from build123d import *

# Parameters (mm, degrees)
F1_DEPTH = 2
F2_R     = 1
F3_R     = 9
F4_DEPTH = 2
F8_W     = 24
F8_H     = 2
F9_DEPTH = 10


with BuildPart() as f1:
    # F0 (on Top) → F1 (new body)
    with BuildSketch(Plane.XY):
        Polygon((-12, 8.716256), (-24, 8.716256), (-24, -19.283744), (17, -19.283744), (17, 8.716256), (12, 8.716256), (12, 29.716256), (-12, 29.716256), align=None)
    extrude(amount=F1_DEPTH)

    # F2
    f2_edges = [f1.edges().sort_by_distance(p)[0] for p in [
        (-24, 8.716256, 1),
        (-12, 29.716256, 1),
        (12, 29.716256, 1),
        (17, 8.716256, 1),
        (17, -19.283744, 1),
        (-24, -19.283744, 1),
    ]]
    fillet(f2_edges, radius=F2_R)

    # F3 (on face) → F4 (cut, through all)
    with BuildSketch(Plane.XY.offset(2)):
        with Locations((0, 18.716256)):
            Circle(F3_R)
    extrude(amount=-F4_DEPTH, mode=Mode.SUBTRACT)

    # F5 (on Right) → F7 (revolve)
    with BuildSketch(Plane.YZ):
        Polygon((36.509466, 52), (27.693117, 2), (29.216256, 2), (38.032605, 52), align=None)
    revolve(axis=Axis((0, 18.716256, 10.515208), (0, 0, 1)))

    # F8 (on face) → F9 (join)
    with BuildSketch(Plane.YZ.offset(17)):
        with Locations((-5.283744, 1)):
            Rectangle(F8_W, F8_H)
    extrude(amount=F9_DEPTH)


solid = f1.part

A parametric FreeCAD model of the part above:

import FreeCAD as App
import Part
import Sketcher
from FreeCAD import Vector
Q = App.Units.Quantity


def edges_at(feature, points):
    """Names of the edges that pass closest to the given points."""
    edges = feature.Shape.Edges
    near = lambda p: min(range(len(edges)), key=lambda i: edges[i].distToShape(Part.Vertex(*p))[0])
    return sorted({f"Edge{near(p) + 1}" for p in points})

doc = App.newDocument("Part")
body = doc.addObject("PartDesign::Body", "Body")

# Sketch on XY plane
sketch1 = doc.addObject("Sketcher::SketchObject", "Sketch")
body.addObject(sketch1)
sketch1.AttachmentSupport = (doc.XY_Plane, [""])
sketch1.MapMode = "FlatFace"
sketch1.addGeometry(Part.LineSegment(Vector(-12, 8.716256, 0), Vector(-24, 8.716256, 0)), False)
sketch1.addGeometry(Part.LineSegment(Vector(-24, 8.716256, 0), Vector(-24, -19.283744, 0)), False)
sketch1.addGeometry(Part.LineSegment(Vector(-24, -19.283744, 0), Vector(17, -19.283744, 0)), False)
sketch1.addGeometry(Part.LineSegment(Vector(17, -19.283744, 0), Vector(17, 8.716256, 0)), False)
sketch1.addGeometry(Part.LineSegment(Vector(17, 8.716256, 0), Vector(12, 8.716256, 0)), False)
sketch1.addGeometry(Part.LineSegment(Vector(12, 8.716256, 0), Vector(12, 29.716256, 0)), False)
sketch1.addGeometry(Part.LineSegment(Vector(12, 29.716256, 0), Vector(-12, 29.716256, 0)), False)
sketch1.addGeometry(Part.LineSegment(Vector(-12, 29.716256, 0), Vector(-12, 8.716256, 0)), False)
sketch1.addConstraint(Sketcher.Constraint("Coincident", 0, 2, 1, 1))
sketch1.addConstraint(Sketcher.Constraint("Coincident", 1, 2, 2, 1))
sketch1.addConstraint(Sketcher.Constraint("Coincident", 2, 2, 3, 1))
sketch1.addConstraint(Sketcher.Constraint("Coincident", 3, 2, 4, 1))
sketch1.addConstraint(Sketcher.Constraint("Coincident", 4, 2, 5, 1))
sketch1.addConstraint(Sketcher.Constraint("Coincident", 5, 2, 6, 1))
sketch1.addConstraint(Sketcher.Constraint("Coincident", 6, 2, 7, 1))
sketch1.addConstraint(Sketcher.Constraint("Coincident", 7, 2, 0, 1))
sketch1.addConstraint(Sketcher.Constraint("Horizontal", 0))
sketch1.addConstraint(Sketcher.Constraint("Vertical", 1))
sketch1.addConstraint(Sketcher.Constraint("Horizontal", 2))
sketch1.addConstraint(Sketcher.Constraint("Vertical", 3))
sketch1.addConstraint(Sketcher.Constraint("Horizontal", 4))
sketch1.addConstraint(Sketcher.Constraint("Vertical", 5))
sketch1.addConstraint(Sketcher.Constraint("Horizontal", 6))
sketch1.addConstraint(Sketcher.Constraint("Vertical", 7))
sketch1.addConstraint(Sketcher.Constraint("Symmetric", 4, 2, 7, 2, -2))
sketch1.addConstraint(Sketcher.Constraint("DistanceX", 0, 2, 0, 1, 12.0))
sketch1.addConstraint(Sketcher.Constraint("DistanceX", 2, 1, 2, 2, 41.0))
sketch1.addConstraint(Sketcher.Constraint("DistanceX", 4, 2, 4, 1, 5.0))
sketch1.addConstraint(Sketcher.Constraint("DistanceY", 1, 2, 1, 1, 28.0))
sketch1.addConstraint(Sketcher.Constraint("DistanceY", 5, 1, 5, 2, 21.0))
sketch1.addConstraint(Sketcher.Constraint("DistanceY", -1, 1, 0, 2, 8.716256))
pad1 = doc.addObject("PartDesign::Pad", "Pad")
body.addObject(pad1)
pad1.Profile = sketch1
pad1.Length = 2
doc.recompute()

fillet = doc.addObject("PartDesign::Fillet", "Fillet")
body.addObject(fillet)
fillet.Base = (pad1, edges_at(pad1, [
    (-24, 8.716, 1),
    (-12, 29.716, 1),
    (12, 29.716, 1),
    (17, 8.716, 1),
    (17, -19.284, 1),
    (-24, -19.284, 1),
]))
fillet.Radius = 1

# Sketch on XY plane
sketch2 = doc.addObject("Sketcher::SketchObject", "Sketch001")
body.addObject(sketch2)
sketch2.AttachmentSupport = (doc.XY_Plane, [""])
sketch2.MapMode = "FlatFace"
sketch2.AttachmentOffset = App.Placement(Vector(0, 0, 2), App.Rotation())
sketch2.addGeometry(Part.Circle(Vector(0, 18.716256, 0), Vector(0, 0, 1), 9), False)
sketch2.addConstraint(Sketcher.Constraint("PointOnObject", 0, 3, -2))
sketch2.addConstraint(Sketcher.Constraint("Diameter", 0, 18.0))
sketch2.addConstraint(Sketcher.Constraint("DistanceY", -1, 1, 0, 3, 18.716256))
pocket1 = doc.addObject("PartDesign::Pocket", "Pocket")
body.addObject(pocket1)
pocket1.Profile = sketch2
pocket1.Type = "ThroughAll"

# Sketch on YZ plane
sketch3 = doc.addObject("Sketcher::SketchObject", "Sketch002")
body.addObject(sketch3)
sketch3.AttachmentSupport = (doc.YZ_Plane, [""])
sketch3.MapMode = "FlatFace"
sketch3.addGeometry(Part.LineSegment(Vector(36.509466, 52, 0), Vector(27.693117, 2, 0)), False)
sketch3.addGeometry(Part.LineSegment(Vector(27.693117, 2, 0), Vector(29.216256, 2, 0)), False)
sketch3.addGeometry(Part.LineSegment(Vector(29.216256, 2, 0), Vector(38.032605, 52, 0)), False)
sketch3.addGeometry(Part.LineSegment(Vector(38.032605, 52, 0), Vector(36.509466, 52, 0)), False)
sketch3.addGeometry(Part.LineSegment(Vector(18.716256, 2, 0), Vector(18.716256, 52, 0)), True)  # axis
sketch3.addConstraint(Sketcher.Constraint("Coincident", 0, 2, 1, 1))
sketch3.addConstraint(Sketcher.Constraint("Coincident", 1, 2, 2, 1))
sketch3.addConstraint(Sketcher.Constraint("Coincident", 2, 2, 3, 1))
sketch3.addConstraint(Sketcher.Constraint("Coincident", 3, 2, 0, 1))
sketch3.addConstraint(Sketcher.Constraint("Horizontal", 1))
sketch3.addConstraint(Sketcher.Constraint("Horizontal", 3))
sketch3.addConstraint(Sketcher.Constraint("Vertical", 4))
sketch3.addConstraint(Sketcher.Constraint("Parallel", 0, 2))
sketch3.addConstraint(Sketcher.Constraint("Horizontal", 1, 2, 4, 1))
sketch3.addConstraint(Sketcher.Constraint("Horizontal", 3, 2, 4, 2))
sketch3.addConstraint(Sketcher.Constraint("DistanceY", 4, 1, 4, 2, 50.0))
sketch3.addConstraint(Sketcher.Constraint("Angle", 0, Q("-100 deg")))
sketch3.addConstraint(Sketcher.Constraint("DistanceY", -1, 1, 0, 2, 2.0))
sketch3.addConstraint(Sketcher.Constraint("DistanceX", 4, 1, 1, 2, 10.5))
sketch3.addConstraint(Sketcher.Constraint("DistanceX", 1, 1, 1, 2, 1.523139))
sketch3.addConstraint(Sketcher.Constraint("DistanceX", -1, 1, 0, 2, 27.693117))
revolution = doc.addObject("PartDesign::Revolution", "Revolution")
body.addObject(revolution)
revolution.Profile = sketch3
revolution.ReferenceAxis = (sketch3, ["Axis0"])
revolution.Angle = 360

# Sketch on YZ plane
sketch4 = doc.addObject("Sketcher::SketchObject", "Sketch003")
body.addObject(sketch4)
sketch4.AttachmentSupport = (doc.YZ_Plane, [""])
sketch4.MapMode = "FlatFace"
sketch4.AttachmentOffset = App.Placement(Vector(0, 0, 17), App.Rotation())
sketch4.addGeometry(Part.LineSegment(Vector(-17.283744, 2, 0), Vector(-17.283744, 0, 0)), False)
sketch4.addGeometry(Part.LineSegment(Vector(-17.283744, 0, 0), Vector(6.716256, 0, 0)), False)
sketch4.addGeometry(Part.LineSegment(Vector(6.716256, 0, 0), Vector(6.716256, 2, 0)), False)
sketch4.addGeometry(Part.LineSegment(Vector(6.716256, 2, 0), Vector(-17.283744, 2, 0)), False)
sketch4.addConstraint(Sketcher.Constraint("Coincident", 0, 2, 1, 1))
sketch4.addConstraint(Sketcher.Constraint("Coincident", 1, 2, 2, 1))
sketch4.addConstraint(Sketcher.Constraint("Coincident", 2, 2, 3, 1))
sketch4.addConstraint(Sketcher.Constraint("Coincident", 3, 2, 0, 1))
sketch4.addConstraint(Sketcher.Constraint("Vertical", 0))
sketch4.addConstraint(Sketcher.Constraint("Horizontal", 1))
sketch4.addConstraint(Sketcher.Constraint("Vertical", 2))
sketch4.addConstraint(Sketcher.Constraint("Horizontal", 3))
sketch4.addConstraint(Sketcher.Constraint("PointOnObject", 0, 2, -1))
sketch4.addConstraint(Sketcher.Constraint("DistanceX", 1, 1, 1, 2, 24.0))
sketch4.addConstraint(Sketcher.Constraint("DistanceY", 0, 2, 0, 1, 2.0))
sketch4.addConstraint(Sketcher.Constraint("DistanceX", 0, 2, -1, 1, 17.283744))
pad2 = doc.addObject("PartDesign::Pad", "Pad001")
body.addObject(pad2)
pad2.Profile = sketch4
pad2.Length = 10

doc.recompute()
